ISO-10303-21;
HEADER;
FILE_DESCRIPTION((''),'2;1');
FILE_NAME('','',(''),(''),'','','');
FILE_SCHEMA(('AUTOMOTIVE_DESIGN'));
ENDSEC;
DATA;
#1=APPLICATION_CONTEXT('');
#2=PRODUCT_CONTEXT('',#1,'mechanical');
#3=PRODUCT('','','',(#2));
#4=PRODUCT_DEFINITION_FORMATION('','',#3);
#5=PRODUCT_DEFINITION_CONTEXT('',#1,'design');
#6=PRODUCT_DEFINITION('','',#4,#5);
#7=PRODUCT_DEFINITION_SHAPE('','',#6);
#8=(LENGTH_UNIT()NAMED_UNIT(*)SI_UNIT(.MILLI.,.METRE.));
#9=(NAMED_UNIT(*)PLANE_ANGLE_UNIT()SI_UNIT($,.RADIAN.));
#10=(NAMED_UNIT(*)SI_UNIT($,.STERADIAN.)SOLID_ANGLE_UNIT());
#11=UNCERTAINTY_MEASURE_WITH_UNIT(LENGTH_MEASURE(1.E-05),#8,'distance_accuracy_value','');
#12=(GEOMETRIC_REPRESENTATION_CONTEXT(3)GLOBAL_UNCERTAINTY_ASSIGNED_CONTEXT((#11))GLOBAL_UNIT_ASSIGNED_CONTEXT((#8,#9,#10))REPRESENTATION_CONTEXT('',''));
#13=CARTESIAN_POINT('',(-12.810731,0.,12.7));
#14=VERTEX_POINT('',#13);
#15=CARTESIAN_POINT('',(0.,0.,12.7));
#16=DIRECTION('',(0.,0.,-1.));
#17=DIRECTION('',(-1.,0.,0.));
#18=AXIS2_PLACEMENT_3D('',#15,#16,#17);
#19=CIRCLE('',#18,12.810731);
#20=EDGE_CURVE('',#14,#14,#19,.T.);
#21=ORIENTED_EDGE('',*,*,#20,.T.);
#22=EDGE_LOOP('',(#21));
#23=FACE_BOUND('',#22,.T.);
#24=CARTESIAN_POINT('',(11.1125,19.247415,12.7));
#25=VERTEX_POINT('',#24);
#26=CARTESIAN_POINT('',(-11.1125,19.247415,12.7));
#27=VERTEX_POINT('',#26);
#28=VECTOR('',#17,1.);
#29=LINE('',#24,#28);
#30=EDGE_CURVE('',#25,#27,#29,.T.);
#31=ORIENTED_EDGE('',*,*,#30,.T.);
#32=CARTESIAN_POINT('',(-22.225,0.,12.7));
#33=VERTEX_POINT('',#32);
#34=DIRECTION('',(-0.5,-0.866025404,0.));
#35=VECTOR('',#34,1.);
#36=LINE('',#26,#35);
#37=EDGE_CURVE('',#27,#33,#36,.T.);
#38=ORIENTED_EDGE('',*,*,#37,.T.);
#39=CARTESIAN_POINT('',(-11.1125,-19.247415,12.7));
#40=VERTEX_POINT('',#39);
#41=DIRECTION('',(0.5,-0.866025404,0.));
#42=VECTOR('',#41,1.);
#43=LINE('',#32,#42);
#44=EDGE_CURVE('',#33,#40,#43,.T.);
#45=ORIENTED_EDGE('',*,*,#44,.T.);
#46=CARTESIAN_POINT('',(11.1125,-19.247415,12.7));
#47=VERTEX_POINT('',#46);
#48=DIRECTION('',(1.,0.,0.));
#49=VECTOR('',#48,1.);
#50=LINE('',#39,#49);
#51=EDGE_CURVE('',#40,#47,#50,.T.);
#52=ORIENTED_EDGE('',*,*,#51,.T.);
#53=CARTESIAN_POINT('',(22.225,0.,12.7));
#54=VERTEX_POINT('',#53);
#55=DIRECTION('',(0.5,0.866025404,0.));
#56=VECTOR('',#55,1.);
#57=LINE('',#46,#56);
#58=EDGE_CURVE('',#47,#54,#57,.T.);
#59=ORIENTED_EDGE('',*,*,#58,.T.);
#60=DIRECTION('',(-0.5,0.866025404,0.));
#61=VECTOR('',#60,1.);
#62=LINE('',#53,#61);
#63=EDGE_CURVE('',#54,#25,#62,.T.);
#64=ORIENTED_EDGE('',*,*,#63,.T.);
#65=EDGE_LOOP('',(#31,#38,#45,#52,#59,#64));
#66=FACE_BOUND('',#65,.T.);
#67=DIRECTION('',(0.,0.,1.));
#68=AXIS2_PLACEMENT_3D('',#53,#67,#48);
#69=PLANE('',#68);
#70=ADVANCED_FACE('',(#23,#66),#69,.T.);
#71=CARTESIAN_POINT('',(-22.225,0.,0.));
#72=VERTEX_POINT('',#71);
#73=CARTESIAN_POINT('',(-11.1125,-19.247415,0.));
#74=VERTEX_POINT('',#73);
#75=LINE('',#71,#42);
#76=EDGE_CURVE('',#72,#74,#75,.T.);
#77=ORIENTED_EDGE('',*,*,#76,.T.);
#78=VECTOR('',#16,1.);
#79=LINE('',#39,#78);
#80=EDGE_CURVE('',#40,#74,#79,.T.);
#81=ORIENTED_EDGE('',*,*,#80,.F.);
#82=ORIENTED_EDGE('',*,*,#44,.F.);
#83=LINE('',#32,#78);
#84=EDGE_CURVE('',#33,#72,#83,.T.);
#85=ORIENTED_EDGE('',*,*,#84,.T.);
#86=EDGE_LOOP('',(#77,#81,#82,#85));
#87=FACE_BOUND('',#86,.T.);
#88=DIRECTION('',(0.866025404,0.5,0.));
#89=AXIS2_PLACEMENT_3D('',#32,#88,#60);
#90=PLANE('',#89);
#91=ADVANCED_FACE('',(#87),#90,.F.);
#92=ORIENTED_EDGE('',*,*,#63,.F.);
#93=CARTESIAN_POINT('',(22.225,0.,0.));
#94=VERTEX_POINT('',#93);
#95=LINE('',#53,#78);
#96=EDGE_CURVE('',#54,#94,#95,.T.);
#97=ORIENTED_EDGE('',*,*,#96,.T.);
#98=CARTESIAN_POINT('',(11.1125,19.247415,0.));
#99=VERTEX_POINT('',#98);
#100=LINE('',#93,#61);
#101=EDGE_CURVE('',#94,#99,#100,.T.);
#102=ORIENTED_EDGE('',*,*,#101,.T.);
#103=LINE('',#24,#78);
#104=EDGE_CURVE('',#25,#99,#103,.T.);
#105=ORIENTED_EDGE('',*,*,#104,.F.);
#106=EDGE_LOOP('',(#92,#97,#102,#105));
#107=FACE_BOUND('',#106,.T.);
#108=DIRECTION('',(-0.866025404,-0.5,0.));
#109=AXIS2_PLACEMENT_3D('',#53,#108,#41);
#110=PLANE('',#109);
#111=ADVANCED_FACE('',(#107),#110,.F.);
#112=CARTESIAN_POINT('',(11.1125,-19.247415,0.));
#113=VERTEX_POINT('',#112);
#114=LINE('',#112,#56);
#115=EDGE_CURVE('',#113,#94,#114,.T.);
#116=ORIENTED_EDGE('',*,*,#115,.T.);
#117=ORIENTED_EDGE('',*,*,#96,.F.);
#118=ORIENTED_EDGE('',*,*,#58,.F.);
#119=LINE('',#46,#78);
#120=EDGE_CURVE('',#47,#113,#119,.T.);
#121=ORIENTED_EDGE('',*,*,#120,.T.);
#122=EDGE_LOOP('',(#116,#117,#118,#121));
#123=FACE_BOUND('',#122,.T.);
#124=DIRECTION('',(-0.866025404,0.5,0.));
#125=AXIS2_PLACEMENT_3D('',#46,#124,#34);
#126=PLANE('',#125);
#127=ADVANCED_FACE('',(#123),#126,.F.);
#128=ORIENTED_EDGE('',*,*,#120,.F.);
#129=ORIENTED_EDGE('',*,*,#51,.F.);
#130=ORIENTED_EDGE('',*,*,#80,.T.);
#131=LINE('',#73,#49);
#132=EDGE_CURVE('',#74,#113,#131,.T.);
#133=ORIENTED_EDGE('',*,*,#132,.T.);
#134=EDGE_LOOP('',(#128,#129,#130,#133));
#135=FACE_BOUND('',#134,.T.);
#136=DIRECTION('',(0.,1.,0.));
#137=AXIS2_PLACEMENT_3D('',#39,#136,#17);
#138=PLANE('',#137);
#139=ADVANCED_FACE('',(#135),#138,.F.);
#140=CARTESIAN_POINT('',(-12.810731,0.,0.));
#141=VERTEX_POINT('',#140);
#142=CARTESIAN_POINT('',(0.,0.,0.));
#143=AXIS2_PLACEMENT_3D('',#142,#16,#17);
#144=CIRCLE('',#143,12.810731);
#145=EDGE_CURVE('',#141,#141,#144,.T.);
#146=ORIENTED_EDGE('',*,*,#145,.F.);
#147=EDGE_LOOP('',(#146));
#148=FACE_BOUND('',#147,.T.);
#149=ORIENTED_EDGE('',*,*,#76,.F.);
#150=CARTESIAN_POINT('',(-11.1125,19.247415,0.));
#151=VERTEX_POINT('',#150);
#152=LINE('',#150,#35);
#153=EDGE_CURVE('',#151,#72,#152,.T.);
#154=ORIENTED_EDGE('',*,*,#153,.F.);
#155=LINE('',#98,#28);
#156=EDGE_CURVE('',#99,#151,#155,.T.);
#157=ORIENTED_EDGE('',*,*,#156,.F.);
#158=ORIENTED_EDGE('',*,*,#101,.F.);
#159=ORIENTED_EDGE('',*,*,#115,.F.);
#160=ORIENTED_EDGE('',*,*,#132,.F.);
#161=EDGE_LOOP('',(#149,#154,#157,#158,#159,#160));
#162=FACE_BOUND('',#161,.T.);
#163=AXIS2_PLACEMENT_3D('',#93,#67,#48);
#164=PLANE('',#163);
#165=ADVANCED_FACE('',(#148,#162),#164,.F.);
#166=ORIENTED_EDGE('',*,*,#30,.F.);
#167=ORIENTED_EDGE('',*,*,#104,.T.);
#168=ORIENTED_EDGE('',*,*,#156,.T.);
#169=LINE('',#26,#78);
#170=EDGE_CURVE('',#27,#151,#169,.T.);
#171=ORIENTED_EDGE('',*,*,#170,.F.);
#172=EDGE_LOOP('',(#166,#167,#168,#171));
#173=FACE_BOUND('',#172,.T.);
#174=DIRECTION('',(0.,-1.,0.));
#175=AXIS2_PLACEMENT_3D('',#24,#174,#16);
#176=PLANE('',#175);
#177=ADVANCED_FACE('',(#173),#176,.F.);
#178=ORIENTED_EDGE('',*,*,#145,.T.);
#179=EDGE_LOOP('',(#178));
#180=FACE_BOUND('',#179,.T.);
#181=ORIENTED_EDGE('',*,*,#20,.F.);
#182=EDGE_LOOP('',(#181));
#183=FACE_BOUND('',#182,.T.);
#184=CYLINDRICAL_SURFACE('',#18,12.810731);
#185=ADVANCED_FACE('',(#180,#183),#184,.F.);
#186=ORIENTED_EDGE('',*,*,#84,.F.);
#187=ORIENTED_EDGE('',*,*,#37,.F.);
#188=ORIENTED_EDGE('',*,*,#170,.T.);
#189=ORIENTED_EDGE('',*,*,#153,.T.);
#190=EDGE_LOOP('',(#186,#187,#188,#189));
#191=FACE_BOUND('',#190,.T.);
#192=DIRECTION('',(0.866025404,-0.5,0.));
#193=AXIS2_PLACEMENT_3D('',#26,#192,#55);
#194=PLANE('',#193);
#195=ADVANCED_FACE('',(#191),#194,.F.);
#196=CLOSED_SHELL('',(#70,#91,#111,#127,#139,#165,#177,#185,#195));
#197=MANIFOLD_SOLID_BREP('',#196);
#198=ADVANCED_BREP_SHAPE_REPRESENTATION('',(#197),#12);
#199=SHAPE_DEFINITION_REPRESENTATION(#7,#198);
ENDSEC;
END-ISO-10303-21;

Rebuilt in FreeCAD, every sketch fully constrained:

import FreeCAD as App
import Part
import Sketcher

V = App.Vector
Q = App.Units.Quantity


def add_polygon(sketch, points):
    """Adds a closed chain of lines whose ends are joined by coincident constraints."""
    first, n = sketch.GeometryCount, len(points)
    for a, b in zip(points, points[1:] + points[:1]):
        sketch.addGeometry(Part.LineSegment(App.Vector(*a, 0), App.Vector(*b, 0)), False)
    for i in range(n):
        sketch.addConstraint(Sketcher.Constraint("Coincident", first + i, 2, first + (i + 1) % n, 1))

doc = App.newDocument("Part")
body = doc.addObject("PartDesign::Body", "Body")

# Sketch on XY plane
sketch1 = doc.addObject("Sketcher::SketchObject", "Sketch")
body.addObject(sketch1)
sketch1.AttachmentSupport = (doc.XY_Plane, [""])
sketch1.MapMode = "FlatFace"
add_polygon(sketch1, [(22, 0), (11, 19), (-11, 19), (-22, 0), (-11, -19), (11, -19)])  # lines 0-5
sketch1.addConstraint(Sketcher.Constraint("Horizontal", 1))
sketch1.addConstraint(Sketcher.Constraint("Horizontal", 4))
sketch1.addConstraint(Sketcher.Constraint("Symmetric", 0, 2, 3, 2, -1, 1))
sketch1.addConstraint(Sketcher.Constraint("Symmetric", 2, 2, 5, 2, -1, 1))
sketch1.addConstraint(Sketcher.Constraint("PointOnObject", 2, 2, -1))
sketch1.addConstraint(Sketcher.Constraint("Parallel", 2, 5))
sketch1.addConstraint(Sketcher.Constraint("Vertical", 1, 2, 3, 2))
sketch1.addConstraint(Sketcher.Constraint("Angle", 0, Q("120 deg")))
sketch1.addConstraint(Sketcher.Constraint("DistanceX", 1, 2, 1, 1, Q("0.875 in")))
sketch1.addConstraint(Sketcher.Constraint("DistanceX", 2, 2, 5, 2, Q("1.75 in")))
pad1 = doc.addObject("PartDesign::Pad", "Pad")
body.addObject(pad1)
pad1.Profile = sketch1
pad1.Length = Q("0.5 in")

# Sketch on XY plane
sketch2 = doc.addObject("Sketcher::SketchObject", "Sketch001")
body.addObject(sketch2)
sketch2.AttachmentSupport = (doc.XY_Plane, [""])
sketch2.MapMode = "FlatFace"
sketch2.addGeometry(Part.Circle(V(0, 0, 0), V(0, 0, 1), 13), False)
sketch2.addConstraint(Sketcher.Constraint("Coincident", 0, 3, -1, 1))
sketch2.addConstraint(Sketcher.Constraint("Diameter", 0, Q("25.621462 mm")))
pocket1 = doc.addObject("PartDesign::Pocket", "Pocket")
body.addObject(pocket1)
pocket1.Profile = sketch2
pocket1.Length = Q("0.5 in")
pocket1.Reversed = True

doc.recompute()
